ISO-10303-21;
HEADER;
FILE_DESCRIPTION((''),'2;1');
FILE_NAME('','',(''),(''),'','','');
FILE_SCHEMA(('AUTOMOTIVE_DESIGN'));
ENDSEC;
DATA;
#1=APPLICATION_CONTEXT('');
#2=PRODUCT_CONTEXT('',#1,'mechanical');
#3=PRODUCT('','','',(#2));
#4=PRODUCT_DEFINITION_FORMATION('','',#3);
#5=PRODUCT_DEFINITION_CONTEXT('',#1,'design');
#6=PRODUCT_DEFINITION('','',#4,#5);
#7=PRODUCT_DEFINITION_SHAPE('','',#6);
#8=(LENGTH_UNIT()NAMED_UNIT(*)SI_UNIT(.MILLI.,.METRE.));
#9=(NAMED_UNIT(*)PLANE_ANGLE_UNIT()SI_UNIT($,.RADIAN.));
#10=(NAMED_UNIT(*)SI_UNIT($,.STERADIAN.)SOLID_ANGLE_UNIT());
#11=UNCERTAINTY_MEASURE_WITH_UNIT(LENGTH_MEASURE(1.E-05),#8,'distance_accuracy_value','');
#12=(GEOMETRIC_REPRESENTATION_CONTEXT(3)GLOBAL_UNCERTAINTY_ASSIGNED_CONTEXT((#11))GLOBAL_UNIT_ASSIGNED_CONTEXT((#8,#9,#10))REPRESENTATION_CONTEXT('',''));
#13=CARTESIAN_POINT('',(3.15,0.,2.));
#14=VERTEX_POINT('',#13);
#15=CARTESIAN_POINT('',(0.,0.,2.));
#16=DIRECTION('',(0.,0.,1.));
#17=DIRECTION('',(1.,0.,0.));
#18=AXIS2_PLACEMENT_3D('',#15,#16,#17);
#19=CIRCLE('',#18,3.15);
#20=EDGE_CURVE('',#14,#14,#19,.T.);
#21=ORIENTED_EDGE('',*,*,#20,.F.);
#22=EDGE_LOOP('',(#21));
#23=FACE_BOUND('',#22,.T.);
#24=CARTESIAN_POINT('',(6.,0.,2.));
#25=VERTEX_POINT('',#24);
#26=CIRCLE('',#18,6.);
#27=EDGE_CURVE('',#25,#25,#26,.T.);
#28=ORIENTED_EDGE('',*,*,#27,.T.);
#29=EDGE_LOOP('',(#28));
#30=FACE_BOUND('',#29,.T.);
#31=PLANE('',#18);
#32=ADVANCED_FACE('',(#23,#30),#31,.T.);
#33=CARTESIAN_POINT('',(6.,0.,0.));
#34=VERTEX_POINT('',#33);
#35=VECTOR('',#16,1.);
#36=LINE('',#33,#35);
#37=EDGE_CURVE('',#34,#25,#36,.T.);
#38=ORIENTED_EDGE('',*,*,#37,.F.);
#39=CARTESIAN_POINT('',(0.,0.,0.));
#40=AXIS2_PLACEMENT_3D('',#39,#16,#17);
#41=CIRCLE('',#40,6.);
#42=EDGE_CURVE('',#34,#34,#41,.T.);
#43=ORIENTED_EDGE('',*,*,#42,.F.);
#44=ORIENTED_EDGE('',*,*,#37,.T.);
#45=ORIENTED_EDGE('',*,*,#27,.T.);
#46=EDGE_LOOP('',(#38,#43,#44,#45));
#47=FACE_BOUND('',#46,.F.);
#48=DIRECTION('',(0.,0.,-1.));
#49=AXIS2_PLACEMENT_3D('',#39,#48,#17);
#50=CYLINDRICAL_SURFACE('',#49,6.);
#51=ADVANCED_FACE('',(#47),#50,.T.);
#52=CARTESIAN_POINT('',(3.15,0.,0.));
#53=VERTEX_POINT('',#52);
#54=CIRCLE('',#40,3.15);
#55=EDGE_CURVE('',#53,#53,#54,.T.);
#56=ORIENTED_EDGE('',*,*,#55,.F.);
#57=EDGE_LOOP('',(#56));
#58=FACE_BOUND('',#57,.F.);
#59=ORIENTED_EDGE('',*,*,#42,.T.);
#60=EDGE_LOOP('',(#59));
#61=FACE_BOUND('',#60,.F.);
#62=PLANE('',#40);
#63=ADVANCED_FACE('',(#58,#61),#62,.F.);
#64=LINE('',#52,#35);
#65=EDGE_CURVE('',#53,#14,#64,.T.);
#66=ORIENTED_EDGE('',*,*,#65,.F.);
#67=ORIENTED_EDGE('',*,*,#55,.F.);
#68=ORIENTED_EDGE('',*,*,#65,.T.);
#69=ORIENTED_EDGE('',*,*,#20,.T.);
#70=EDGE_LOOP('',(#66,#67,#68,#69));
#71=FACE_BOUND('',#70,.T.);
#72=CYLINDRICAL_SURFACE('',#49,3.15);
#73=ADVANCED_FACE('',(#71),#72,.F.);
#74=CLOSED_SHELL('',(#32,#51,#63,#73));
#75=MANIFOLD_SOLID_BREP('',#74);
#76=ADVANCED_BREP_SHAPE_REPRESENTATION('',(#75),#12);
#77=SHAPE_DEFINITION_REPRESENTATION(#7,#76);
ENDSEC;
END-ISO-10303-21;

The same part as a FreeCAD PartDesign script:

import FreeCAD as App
import Part
import Sketcher

V = App.Vector
Q = App.Units.Quantity

doc = App.newDocument("Part")
params = doc.addObject("Spreadsheet::Sheet", "Params")
for row, (alias, value) in enumerate([
    ("sketch1_diameter", "12 mm"),
    ("sketch1_diameter2", "6.3 mm"),
    ("pad1_length", "2 mm"),
], start=1):
    params.set(f"A{row}", alias)
    params.set(f"B{row}", "=" + value)
    params.setAlias(f"B{row}", alias)

body = doc.addObject("PartDesign::Body", "Body")

# Sketch on XY plane
sketch1 = doc.addObject("Sketcher::SketchObject", "Sketch")
body.addObject(sketch1)
sketch1.AttachmentSupport = (doc.XY_Plane, [""])
sketch1.MapMode = "FlatFace"
sketch1.addGeometry(Part.Circle(V(0, 0, 0), V(0, 0, 1), 6), False)
sketch1.addGeometry(Part.Circle(V(0, 0, 0), V(0, 0, 1), 3.1), False)
sketch1.addConstraint(Sketcher.Constraint("Coincident", 0, 3, -1, 1))
sketch1.addConstraint(Sketcher.Constraint("Coincident", 1, 3, -1, 1))
sketch1.addConstraint(Sketcher.Constraint("Diameter", 0, Q("12 mm")))
sketch1.addConstraint(Sketcher.Constraint("Diameter", 1, Q("6.3 mm")))
sketch1.setExpression("Constraints[2]", "Params.sketch1_diameter")
sketch1.setExpression("Constraints[3]", "Params.sketch1_diameter2")
pad1 = doc.addObject("PartDesign::Pad", "Pad")
body.addObject(pad1)
pad1.Profile = sketch1
pad1.setExpression("Length", "Params.pad1_length")

doc.recompute()
